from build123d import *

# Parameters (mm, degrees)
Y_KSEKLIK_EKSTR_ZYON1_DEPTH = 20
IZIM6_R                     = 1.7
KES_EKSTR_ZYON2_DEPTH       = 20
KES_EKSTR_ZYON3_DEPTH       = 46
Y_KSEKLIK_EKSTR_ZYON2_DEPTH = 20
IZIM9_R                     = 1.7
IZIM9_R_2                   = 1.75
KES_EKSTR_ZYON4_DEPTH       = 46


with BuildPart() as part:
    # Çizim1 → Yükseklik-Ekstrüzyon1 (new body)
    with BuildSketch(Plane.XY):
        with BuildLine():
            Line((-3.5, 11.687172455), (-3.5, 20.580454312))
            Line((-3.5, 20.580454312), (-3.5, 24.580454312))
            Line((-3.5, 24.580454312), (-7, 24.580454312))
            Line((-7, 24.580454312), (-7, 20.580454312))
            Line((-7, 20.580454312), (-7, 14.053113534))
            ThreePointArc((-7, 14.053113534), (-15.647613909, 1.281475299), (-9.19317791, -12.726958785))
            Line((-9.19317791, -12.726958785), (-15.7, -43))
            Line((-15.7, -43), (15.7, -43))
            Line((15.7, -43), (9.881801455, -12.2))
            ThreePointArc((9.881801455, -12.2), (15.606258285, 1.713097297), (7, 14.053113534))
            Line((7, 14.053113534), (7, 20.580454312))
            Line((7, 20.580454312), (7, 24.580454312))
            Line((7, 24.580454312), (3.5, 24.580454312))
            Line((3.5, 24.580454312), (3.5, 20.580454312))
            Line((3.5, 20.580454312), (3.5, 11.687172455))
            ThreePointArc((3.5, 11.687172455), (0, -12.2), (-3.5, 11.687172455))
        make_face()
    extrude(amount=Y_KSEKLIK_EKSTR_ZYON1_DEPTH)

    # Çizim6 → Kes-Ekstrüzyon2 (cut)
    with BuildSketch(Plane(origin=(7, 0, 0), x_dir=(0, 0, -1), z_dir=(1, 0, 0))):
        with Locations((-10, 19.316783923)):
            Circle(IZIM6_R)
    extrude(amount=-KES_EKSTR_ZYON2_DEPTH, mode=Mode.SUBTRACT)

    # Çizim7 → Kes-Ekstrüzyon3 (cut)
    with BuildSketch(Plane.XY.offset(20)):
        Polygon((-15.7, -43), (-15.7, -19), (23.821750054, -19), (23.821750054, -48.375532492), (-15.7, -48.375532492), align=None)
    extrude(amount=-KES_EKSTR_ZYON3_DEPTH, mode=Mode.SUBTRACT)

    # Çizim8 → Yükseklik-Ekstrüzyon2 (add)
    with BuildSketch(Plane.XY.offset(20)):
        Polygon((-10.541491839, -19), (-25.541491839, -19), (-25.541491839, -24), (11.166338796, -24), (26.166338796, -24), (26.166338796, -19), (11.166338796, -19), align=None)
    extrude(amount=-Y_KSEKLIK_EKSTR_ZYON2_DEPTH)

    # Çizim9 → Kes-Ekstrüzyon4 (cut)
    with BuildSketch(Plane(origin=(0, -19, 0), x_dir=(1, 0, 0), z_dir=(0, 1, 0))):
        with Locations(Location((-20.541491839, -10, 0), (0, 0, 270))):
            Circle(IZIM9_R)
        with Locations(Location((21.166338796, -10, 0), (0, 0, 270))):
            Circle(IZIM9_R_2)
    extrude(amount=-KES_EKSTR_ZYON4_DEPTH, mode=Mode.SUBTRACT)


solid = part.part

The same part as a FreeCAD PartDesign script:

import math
import FreeCAD as App
import Part
import Sketcher

doc = App.newDocument("Part")
params = doc.addObject("Spreadsheet::Sheet", "Params")
for row, (alias, value) in enumerate([
    ("sketch1_radius", "15.7 mm"),
    ("sketch1_radius2", "12.2 mm"),
    ("sketch1_width", "3.5 mm"),
    ("sketch1_width2", "31.4 mm"),
    ("pad1_length", "20 mm"),
    ("sketch2_diameter", "3.4 mm"),
    ("pocket1_length", "20 mm"),
    ("pocket2_length", "46 mm"),
    ("sketch4_height", "5 mm"),
    ("pad2_length", "20 mm"),
    ("sketch5_diameter", "3.4 mm"),
    ("sketch5_diameter2", "3.5 mm"),
    ("pocket3_length", "46 mm"),
], start=1):
    params.set(f"A{row}", alias)
    params.set(f"B{row}", "=" + value)
    params.setAlias(f"B{row}", alias)

body = doc.addObject("PartDesign::Body", "Body")

sketch1 = doc.addObject("Sketcher::SketchObject", "Sketch")
body.addObject(sketch1)
sketch1.AttachmentSupport = (doc.XY_Plane, [""])
sketch1.MapMode = "FlatFace"
sketch1.addGeometry(Part.LineSegment(App.Vector(-3.5, 11.687172, 0), App.Vector(-3.5, 24.580454, 0)), False)
sketch1.addGeometry(Part.LineSegment(App.Vector(-3.5, 24.580454, 0), App.Vector(-7, 24.580454, 0)), False)
sketch1.addGeometry(Part.LineSegment(App.Vector(-7, 24.580454, 0), App.Vector(-7, 14.053114, 0)), False)
sketch1.addGeometry(Part.ArcOfCircle(Part.Circle(App.Vector(0, 0, 0), App.Vector(0, 0, 1), 15.7), math.radians(116.478366), math.radians(234.157952)), False)
sketch1.addGeometry(Part.LineSegment(App.Vector(-9.193178, -12.726959, 0), App.Vector(-15.7, -43, 0)), False)
sketch1.addGeometry(Part.LineSegment(App.Vector(-15.7, -43, 0), App.Vector(15.7, -43, 0)), False)
sketch1.addGeometry(Part.LineSegment(App.Vector(15.7, -43, 0), App.Vector(9.881801, -12.2, 0)), False)
sketch1.addGeometry(Part.ArcOfCircle(Part.Circle(App.Vector(0, 0, 0), App.Vector(0, 0, 1), 15.7), math.radians(-50.99309), math.radians(63.521634)), False)
sketch1.addGeometry(Part.LineSegment(App.Vector(7, 14.053114, 0), App.Vector(7, 24.580454, 0)), False)
sketch1.addGeometry(Part.LineSegment(App.Vector(7, 24.580454, 0), App.Vector(3.5, 24.580454, 0)), False)
sketch1.addGeometry(Part.LineSegment(App.Vector(3.5, 24.580454, 0), App.Vector(3.5, 11.687172, 0)), False)
sketch1.addGeometry(Part.ArcOfCircle(Part.Circle(App.Vector(0, 0, 0), App.Vector(0, 0, 1), 12.2), math.radians(106.671572), math.radians(433.328428)), False)
sketch1.addConstraint(Sketcher.Constraint("Coincident", 0, 2, 1, 1))
sketch1.addConstraint(Sketcher.Constraint("Coincident", 1, 2, 2, 1))
sketch1.addConstraint(Sketcher.Constraint("Coincident", 2, 2, 3, 1))
sketch1.addConstraint(Sketcher.Constraint("Coincident", 3, 2, 4, 1))
sketch1.addConstraint(Sketcher.Constraint("Coincident", 4, 2, 5, 1))
sketch1.addConstraint(Sketcher.Constraint("Coincident", 5, 2, 6, 1))
sketch1.addConstraint(Sketcher.Constraint("Coincident", 6, 2, 7, 1))
sketch1.addConstraint(Sketcher.Constraint("Coincident", 7, 2, 8, 1))
sketch1.addConstraint(Sketcher.Constraint("Coincident", 8, 2, 9, 1))
sketch1.addConstraint(Sketcher.Constraint("Coincident", 9, 2, 10, 1))
sketch1.addConstraint(Sketcher.Constraint("Coincident", 10, 2, 11, 2))
sketch1.addConstraint(Sketcher.Constraint("Coincident", 11, 1, 0, 1))
sketch1.addConstraint(Sketcher.Constraint("Vertical", 0))
sketch1.addConstraint(Sketcher.Constraint("Horizontal", 1))
sketch1.addConstraint(Sketcher.Constraint("Vertical", 2))
sketch1.addConstraint(Sketcher.Constraint("Horizontal", 5))
sketch1.addConstraint(Sketcher.Constraint("Vertical", 8))
sketch1.addConstraint(Sketcher.Constraint("Horizontal", 9))
sketch1.addConstraint(Sketcher.Constraint("Vertical", 10))
sketch1.addConstraint(Sketcher.Constraint("Coincident", 3, 3, -1, 1))
sketch1.addConstraint(Sketcher.Constraint("Coincident", 7, 3, -1, 1))
sketch1.addConstraint(Sketcher.Constraint("Coincident", 11, 3, -1, 1))
sketch1.addConstraint(Sketcher.Constraint("Equal", 3, 7))
sketch1.addConstraint(Sketcher.Constraint("Symmetric", 1, 2, 8, 2, -2))
sketch1.addConstraint(Sketcher.Constraint("Horizontal", 10, 2, 11, 1))
sketch1.addConstraint(Sketcher.Constraint("Radius", 3, 15.7))
sketch1.addConstraint(Sketcher.Constraint("Radius", 11, 12.2))
sketch1.addConstraint(Sketcher.Constraint("DistanceX", 1, 2, 1, 1, 3.5))
sketch1.addConstraint(Sketcher.Constraint("DistanceX", 5, 1, 5, 2, 31.4))
sketch1.addConstraint(Sketcher.Constraint("DistanceX", 1, 2, -1, 1, 7.0))
sketch1.addConstraint(Sketcher.Constraint("DistanceY", 4, 2, -1, 1, 43.0))
sketch1.addConstraint(Sketcher.Constraint("DistanceX", 4, 2, -1, 1, 15.7))
sketch1.addConstraint(Sketcher.Constraint("DistanceY", 6, 2, -1, 1, 12.2))
sketch1.addConstraint(Sketcher.Constraint("DistanceY", 0, 1, 0, 2, 12.893282))
sketch1.addConstraint(Sketcher.Constraint("DistanceY", 3, 2, -1, 1, 12.726959))
sketch1.setExpression("Constraints[25]", "Params.sketch1_radius")
sketch1.setExpression("Constraints[26]", "Params.sketch1_radius2")
sketch1.setExpression("Constraints[27]", "Params.sketch1_width")
sketch1.setExpression("Constraints[28]", "Params.sketch1_width2")
pad1 = doc.addObject("PartDesign::Pad", "Pad")
body.addObject(pad1)
pad1.Profile = sketch1
pad1.setExpression("Length", "Params.pad1_length")

sketch2 = doc.addObject("Sketcher::SketchObject", "Sketch001")
body.addObject(sketch2)
sketch2.AttachmentSupport = (doc.YZ_Plane, [""])
sketch2.MapMode = "FlatFace"
sketch2.AttachmentOffset = App.Placement(App.Vector(0, 0, 7), App.Rotation())
sketch2.addGeometry(Part.Circle(App.Vector(19.316784, 10, 0), App.Vector(0, 0, 1), 1.7), False)
sketch2.addConstraint(Sketcher.Constraint("Diameter", 0, 3.4))
sketch2.addConstraint(Sketcher.Constraint("DistanceY", -1, 1, 0, 3, 10.0))
sketch2.addConstraint(Sketcher.Constraint("DistanceX", -1, 1, 0, 3, 19.316784))
sketch2.setExpression("Constraints[0]", "Params.sketch2_diameter")
pocket1 = doc.addObject("PartDesign::Pocket", "Pocket")
body.addObject(pocket1)
pocket1.Profile = sketch2
pocket1.setExpression("Length", "Params.pocket1_length")

sketch3 = doc.addObject("Sketcher::SketchObject", "Sketch002")
body.addObject(sketch3)
sketch3.AttachmentSupport = (doc.XY_Plane, [""])
sketch3.MapMode = "FlatFace"
sketch3.AttachmentOffset = App.Placement(App.Vector(0, 0, 20), App.Rotation())
sketch3.addGeometry(Part.LineSegment(App.Vector(-15.7, -19, 0), App.Vector(-15.7, -48.375532, 0)), False)
sketch3.addGeometry(Part.LineSegment(App.Vector(-15.7, -48.375532, 0), App.Vector(23.82175, -48.375532, 0)), False)
sketch3.addGeometry(Part.LineSegment(App.Vector(23.82175, -48.375532, 0), App.Vector(23.82175, -19, 0)), False)
sketch3.addGeometry(Part.LineSegment(App.Vector(23.82175, -19, 0), App.Vector(-15.7, -19, 0)), False)
sketch3.addConstraint(Sketcher.Constraint("Coincident", 0, 2, 1, 1))
sketch3.addConstraint(Sketcher.Constraint("Coincident", 1, 2, 2, 1))
sketch3.addConstraint(Sketcher.Constraint("Coincident", 2, 2, 3, 1))
sketch3.addConstraint(Sketcher.Constraint("Coincident", 3, 2, 0, 1))
sketch3.addConstraint(Sketcher.Constraint("Vertical", 0))
sketch3.addConstraint(Sketcher.Constraint("Horizontal", 1))
sketch3.addConstraint(Sketcher.Constraint("Vertical", 2))
sketch3.addConstraint(Sketcher.Constraint("Horizontal", 3))
sketch3.addConstraint(Sketcher.Constraint("DistanceY", 2, 2, -1, 1, 19.0))
sketch3.addConstraint(Sketcher.Constraint("DistanceX", 0, 2, -1, 1, 15.7))
sketch3.addConstraint(Sketcher.Constraint("DistanceX", 1, 1, 1, 2, 39.52175))
sketch3.addConstraint(Sketcher.Constraint("DistanceY", 0, 2, 0, 1, 29.375532))
pocket2 = doc.addObject("PartDesign::Pocket", "Pocket001")
body.addObject(pocket2)
pocket2.Profile = sketch3
pocket2.setExpression("Length", "Params.pocket2_length")

sketch4 = doc.addObject("Sketcher::SketchObject", "Sketch003")
body.addObject(sketch4)
sketch4.AttachmentSupport = (doc.XY_Plane, [""])
sketch4.MapMode = "FlatFace"
sketch4.AttachmentOffset = App.Placement(App.Vector(0, 0, 20), App.Rotation())
sketch4.addGeometry(Part.LineSegment(App.Vector(-25.541492, -19, 0), App.Vector(-25.541492, -24, 0)), False)
sketch4.addGeometry(Part.LineSegment(App.Vector(-25.541492, -24, 0), App.Vector(26.166339, -24, 0)), False)
sketch4.addGeometry(Part.LineSegment(App.Vector(26.166339, -24, 0), App.Vector(26.166339, -19, 0)), False)
sketch4.addGeometry(Part.LineSegment(App.Vector(26.166339, -19, 0), App.Vector(-25.541492, -19, 0)), False)
sketch4.addConstraint(Sketcher.Constraint("Coincident", 0, 2, 1, 1))
sketch4.addConstraint(Sketcher.Constraint("Coincident", 1, 2, 2, 1))
sketch4.addConstraint(Sketcher.Constraint("Coincident", 2, 2, 3, 1))
sketch4.addConstraint(Sketcher.Constraint("Coincident", 3, 2, 0, 1))
sketch4.addConstraint(Sketcher.Constraint("Vertical", 0))
sketch4.addConstraint(Sketcher.Constraint("Horizontal", 1))
sketch4.addConstraint(Sketcher.Constraint("Vertical", 2))
sketch4.addConstraint(Sketcher.Constraint("Horizontal", 3))
sketch4.addConstraint(Sketcher.Constraint("DistanceY", 0, 2, 0, 1, 5.0))
sketch4.addConstraint(Sketcher.Constraint("DistanceY", 0, 2, -1, 1, 24.0))
sketch4.addConstraint(Sketcher.Constraint("DistanceX", 1, 1, 1, 2, 51.707831))
sketch4.addConstraint(Sketcher.Constraint("DistanceX", 0, 2, -1, 1, 25.541492))
sketch4.setExpression("Constraints[8]", "Params.sketch4_height")
pad2 = doc.addObject("PartDesign::Pad", "Pad001")
body.addObject(pad2)
pad2.Profile = sketch4
pad2.setExpression("Length", "Params.pad2_length")
pad2.Reversed = True

sketch5 = doc.addObject("Sketcher::SketchObject", "Sketch004")
body.addObject(sketch5)
sketch5.AttachmentSupport = (doc.XZ_Plane, [""])
sketch5.MapMode = "FlatFace"
sketch5.AttachmentOffset = App.Placement(App.Vector(0, 0, 19), App.Rotation())
sketch5.addGeometry(Part.Circle(App.Vector(-20.541492, 10, 0), App.Vector(0, 0, 1), 1.7), False)
sketch5.addGeometry(Part.Circle(App.Vector(21.166339, 10, 0), App.Vector(0, 0, 1), 1.75), False)
sketch5.addConstraint(Sketcher.Constraint("Horizontal", 0, 3, 1, 3))
sketch5.addConstraint(Sketcher.Constraint("Diameter", 0, 3.4))
sketch5.addConstraint(Sketcher.Constraint("Diameter", 1, 3.5))
sketch5.addConstraint(Sketcher.Constraint("DistanceY", -1, 1, 0, 3, 10.0))
sketch5.addConstraint(Sketcher.Constraint("DistanceX", 0, 3, -1, 1, 20.541492))
sketch5.addConstraint(Sketcher.Constraint("DistanceX", -1, 1, 1, 3, 21.166339))
sketch5.setExpression("Constraints[1]", "Params.sketch5_diameter")
sketch5.setExpression("Constraints[2]", "Params.sketch5_diameter2")
pocket3 = doc.addObject("PartDesign::Pocket", "Pocket002")
body.addObject(pocket3)
pocket3.Profile = sketch5
pocket3.setExpression("Length", "Params.pocket3_length")
pocket3.Reversed = True

doc.recompute()
